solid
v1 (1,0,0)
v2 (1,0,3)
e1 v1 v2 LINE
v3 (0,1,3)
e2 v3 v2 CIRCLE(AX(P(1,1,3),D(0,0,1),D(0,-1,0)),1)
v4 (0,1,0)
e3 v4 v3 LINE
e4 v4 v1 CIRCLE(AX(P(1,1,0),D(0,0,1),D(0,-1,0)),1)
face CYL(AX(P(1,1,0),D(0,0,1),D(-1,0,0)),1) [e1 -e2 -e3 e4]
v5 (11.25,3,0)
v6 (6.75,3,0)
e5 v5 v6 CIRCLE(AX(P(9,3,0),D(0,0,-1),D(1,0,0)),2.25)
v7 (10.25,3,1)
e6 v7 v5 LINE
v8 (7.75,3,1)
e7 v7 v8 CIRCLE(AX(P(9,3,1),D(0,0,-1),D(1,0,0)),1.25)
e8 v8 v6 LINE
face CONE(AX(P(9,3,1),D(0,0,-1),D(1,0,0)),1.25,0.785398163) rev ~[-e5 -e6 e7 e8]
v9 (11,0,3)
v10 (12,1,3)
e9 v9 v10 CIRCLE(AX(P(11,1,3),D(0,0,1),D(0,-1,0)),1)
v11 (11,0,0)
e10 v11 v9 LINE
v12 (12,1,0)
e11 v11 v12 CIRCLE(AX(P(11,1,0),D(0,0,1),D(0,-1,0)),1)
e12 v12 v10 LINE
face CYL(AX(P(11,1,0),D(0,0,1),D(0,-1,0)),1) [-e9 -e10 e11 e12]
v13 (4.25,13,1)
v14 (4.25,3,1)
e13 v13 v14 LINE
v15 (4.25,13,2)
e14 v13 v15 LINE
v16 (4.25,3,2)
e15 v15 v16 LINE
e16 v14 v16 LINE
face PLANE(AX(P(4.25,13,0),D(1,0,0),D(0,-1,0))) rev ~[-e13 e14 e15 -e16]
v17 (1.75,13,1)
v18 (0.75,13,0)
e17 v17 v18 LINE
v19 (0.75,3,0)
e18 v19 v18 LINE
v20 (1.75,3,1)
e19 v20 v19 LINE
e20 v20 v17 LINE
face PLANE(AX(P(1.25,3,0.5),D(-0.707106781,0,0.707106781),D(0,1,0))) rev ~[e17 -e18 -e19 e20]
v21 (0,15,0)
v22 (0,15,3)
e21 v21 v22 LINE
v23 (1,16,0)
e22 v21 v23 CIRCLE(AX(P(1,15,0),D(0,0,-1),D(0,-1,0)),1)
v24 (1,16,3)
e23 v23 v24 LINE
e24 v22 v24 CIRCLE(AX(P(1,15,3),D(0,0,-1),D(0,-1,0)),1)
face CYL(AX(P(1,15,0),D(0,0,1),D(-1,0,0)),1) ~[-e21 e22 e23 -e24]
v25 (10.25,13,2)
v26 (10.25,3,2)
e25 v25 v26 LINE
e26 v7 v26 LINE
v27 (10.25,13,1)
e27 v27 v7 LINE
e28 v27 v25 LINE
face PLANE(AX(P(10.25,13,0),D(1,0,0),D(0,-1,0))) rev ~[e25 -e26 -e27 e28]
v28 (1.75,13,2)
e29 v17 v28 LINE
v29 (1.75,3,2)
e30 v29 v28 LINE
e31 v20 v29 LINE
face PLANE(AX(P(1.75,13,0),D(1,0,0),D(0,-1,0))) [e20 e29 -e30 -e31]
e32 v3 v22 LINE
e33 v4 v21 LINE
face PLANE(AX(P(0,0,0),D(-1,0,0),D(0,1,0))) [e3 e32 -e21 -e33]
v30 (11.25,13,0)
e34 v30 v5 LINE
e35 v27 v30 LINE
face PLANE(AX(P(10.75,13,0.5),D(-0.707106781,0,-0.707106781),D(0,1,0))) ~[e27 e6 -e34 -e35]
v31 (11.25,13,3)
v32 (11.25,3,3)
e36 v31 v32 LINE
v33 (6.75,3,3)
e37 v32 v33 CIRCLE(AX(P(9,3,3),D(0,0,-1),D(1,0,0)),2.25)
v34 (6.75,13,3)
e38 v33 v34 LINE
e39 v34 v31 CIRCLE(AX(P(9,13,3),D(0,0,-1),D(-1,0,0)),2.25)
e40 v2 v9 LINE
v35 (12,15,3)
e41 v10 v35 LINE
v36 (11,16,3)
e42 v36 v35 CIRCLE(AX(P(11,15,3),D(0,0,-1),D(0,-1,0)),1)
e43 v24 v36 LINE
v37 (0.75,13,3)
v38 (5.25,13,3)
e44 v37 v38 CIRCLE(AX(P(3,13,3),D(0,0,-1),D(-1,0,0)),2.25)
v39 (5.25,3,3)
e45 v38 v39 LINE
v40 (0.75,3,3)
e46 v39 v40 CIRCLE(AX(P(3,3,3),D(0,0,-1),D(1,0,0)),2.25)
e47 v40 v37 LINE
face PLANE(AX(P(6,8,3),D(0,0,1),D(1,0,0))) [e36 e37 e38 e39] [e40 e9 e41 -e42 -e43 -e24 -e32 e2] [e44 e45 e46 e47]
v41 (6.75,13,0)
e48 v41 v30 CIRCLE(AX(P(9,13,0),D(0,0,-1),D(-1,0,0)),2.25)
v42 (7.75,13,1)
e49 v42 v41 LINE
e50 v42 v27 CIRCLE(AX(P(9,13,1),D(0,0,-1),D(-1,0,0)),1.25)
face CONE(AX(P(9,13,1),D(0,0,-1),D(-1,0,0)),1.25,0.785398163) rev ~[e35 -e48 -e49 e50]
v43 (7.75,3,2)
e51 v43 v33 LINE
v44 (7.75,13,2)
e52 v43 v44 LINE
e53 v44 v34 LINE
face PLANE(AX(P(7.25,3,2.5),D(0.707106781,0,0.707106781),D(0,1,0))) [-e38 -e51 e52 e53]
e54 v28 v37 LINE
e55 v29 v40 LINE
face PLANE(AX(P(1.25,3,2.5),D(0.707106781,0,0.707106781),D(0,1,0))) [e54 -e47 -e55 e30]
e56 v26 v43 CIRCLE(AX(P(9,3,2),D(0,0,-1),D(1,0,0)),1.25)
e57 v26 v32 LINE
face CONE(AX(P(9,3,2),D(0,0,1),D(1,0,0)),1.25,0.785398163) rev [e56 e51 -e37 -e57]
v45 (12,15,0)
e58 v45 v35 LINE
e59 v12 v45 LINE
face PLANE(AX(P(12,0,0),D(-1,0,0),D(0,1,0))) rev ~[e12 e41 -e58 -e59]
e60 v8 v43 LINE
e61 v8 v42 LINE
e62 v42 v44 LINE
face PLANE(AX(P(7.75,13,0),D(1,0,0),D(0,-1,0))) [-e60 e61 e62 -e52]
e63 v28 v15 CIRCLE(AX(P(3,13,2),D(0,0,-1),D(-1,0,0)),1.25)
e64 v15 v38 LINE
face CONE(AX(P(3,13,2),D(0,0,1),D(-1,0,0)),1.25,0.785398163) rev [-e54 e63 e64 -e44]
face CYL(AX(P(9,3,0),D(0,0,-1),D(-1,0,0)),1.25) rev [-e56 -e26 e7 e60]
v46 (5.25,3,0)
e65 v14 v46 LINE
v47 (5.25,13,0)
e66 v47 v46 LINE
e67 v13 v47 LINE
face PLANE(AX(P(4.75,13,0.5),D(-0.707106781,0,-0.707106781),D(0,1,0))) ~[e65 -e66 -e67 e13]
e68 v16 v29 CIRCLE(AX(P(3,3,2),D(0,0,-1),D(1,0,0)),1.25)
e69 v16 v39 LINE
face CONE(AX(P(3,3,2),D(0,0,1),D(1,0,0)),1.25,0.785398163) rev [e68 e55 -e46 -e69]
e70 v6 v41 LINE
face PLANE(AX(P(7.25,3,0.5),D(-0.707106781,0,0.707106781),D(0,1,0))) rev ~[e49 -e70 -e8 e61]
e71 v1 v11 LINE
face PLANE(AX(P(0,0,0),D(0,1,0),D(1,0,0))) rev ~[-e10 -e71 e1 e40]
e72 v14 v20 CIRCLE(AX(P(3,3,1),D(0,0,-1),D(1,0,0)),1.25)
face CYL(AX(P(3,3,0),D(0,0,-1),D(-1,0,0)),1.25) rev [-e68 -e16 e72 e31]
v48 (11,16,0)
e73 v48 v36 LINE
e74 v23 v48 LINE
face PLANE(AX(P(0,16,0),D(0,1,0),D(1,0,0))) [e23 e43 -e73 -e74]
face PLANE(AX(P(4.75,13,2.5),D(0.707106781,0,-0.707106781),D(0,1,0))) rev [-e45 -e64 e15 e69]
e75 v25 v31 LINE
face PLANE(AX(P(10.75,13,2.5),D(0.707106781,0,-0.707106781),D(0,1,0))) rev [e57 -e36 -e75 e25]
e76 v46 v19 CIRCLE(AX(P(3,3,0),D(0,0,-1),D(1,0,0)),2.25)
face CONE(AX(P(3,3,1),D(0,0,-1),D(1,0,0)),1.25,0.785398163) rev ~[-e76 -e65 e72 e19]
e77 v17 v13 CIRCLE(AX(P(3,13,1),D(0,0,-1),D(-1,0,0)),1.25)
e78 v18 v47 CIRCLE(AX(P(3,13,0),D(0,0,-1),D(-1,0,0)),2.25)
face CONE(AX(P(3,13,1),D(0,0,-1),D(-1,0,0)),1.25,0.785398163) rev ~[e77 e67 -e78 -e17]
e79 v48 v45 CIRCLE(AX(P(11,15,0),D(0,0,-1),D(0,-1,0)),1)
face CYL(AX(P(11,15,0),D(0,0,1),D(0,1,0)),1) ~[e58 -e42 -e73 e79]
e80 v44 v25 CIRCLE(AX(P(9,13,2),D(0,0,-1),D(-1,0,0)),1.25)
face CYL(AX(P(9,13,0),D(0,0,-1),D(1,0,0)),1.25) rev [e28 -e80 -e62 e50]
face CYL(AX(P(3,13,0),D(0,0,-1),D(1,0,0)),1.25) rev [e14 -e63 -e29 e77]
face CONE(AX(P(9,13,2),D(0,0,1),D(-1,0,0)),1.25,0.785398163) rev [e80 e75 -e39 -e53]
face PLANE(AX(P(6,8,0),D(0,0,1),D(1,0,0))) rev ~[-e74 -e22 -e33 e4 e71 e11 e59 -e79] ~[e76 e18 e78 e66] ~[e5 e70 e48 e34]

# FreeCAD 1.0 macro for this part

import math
import FreeCAD as App
import Part
import Sketcher
from FreeCAD import Vector
Q = App.Units.Quantity


def edges_at(feature, points):
    """Names of the edges that pass closest to the given points."""
    edges = feature.Shape.Edges
    near = lambda p: min(range(len(edges)), key=lambda i: edges[i].distToShape(Part.Vertex(*p))[0])
    return sorted({f"Edge{near(p) + 1}" for p in points})


def add_polygon(sketch, points):
    """Adds a closed chain of lines whose ends are joined by coincident constraints."""
    first, n = sketch.GeometryCount, len(points)
    for a, b in zip(points, points[1:] + points[:1]):
        sketch.addGeometry(Part.LineSegment(App.Vector(*a, 0), App.Vector(*b, 0)), False)
    for i in range(n):
        sketch.addConstraint(Sketcher.Constraint("Coincident", first + i, 2, first + (i + 1) % n, 1))

doc = App.newDocument("Part")
params = doc.addObject("Spreadsheet::Sheet", "Params")
for row, (alias, value) in enumerate([
    ("sketch1_width", "12 mm"),
    ("sketch1_height", "16 mm"),
    ("sketch1_height2", "10 mm"),
    ("sketch1_radius", "1.25 mm"),
    ("pad1_length", "3 mm"),
    ("chamfer_size", "1 mm"),
    ("fillet_radius", "1 mm"),
], start=1):
    params.set(f"A{row}", alias)
    params.set(f"B{row}", "=" + value)
    params.setAlias(f"B{row}", alias)

body = doc.addObject("PartDesign::Body", "Body")

# Sketch on XY plane
sketch1 = body.newObject("Sketcher::SketchObject", "Sketch")
sketch1.AttachmentSupport = (doc.getObject("XY_Plane"), [""])
sketch1.MapMode = "FlatFace"
add_polygon(sketch1, [(0, 16), (0, 0), (12, 0), (12, 16)])  # lines 0-3
sketch1.addGeometry(Part.ArcOfCircle(Part.Circle(Vector(3, 13, 0), Vector(0, 0, 1), 1.25), math.radians(0), math.radians(180)), False)  # 4
sketch1.addGeometry(Part.LineSegment(Vector(4.25, 13, 0), Vector(4.25, 3, 0)), False)  # 5
sketch1.addGeometry(Part.ArcOfCircle(Part.Circle(Vector(3, 3, 0), Vector(0, 0, 1), 1.25), math.radians(180), math.radians(360)), False)  # 6
sketch1.addGeometry(Part.LineSegment(Vector(1.75, 3, 0), Vector(1.75, 13, 0)), False)  # 7
sketch1.addGeometry(Part.ArcOfCircle(Part.Circle(Vector(9, 13, 0), Vector(0, 0, 1), 1.25), math.radians(0), math.radians(180)), False)  # 8
sketch1.addGeometry(Part.LineSegment(Vector(10.25, 13, 0), Vector(10.25, 3, 0)), False)  # 9
sketch1.addGeometry(Part.ArcOfCircle(Part.Circle(Vector(9, 3, 0), Vector(0, 0, 1), 1.25), math.radians(180), math.radians(360)), False)  # 10
sketch1.addGeometry(Part.LineSegment(Vector(7.75, 3, 0), Vector(7.75, 13, 0)), False)  # 11
sketch1.addConstraint([
    Sketcher.Constraint("Tangent", 4, 1, 5, 1),
    Sketcher.Constraint("Tangent", 5, 2, 6, 2),
    Sketcher.Constraint("Tangent", 6, 1, 7, 1),
    Sketcher.Constraint("Tangent", 7, 2, 4, 2),
    Sketcher.Constraint("Tangent", 8, 1, 9, 1),
    Sketcher.Constraint("Tangent", 9, 2, 10, 2),
    Sketcher.Constraint("Tangent", 10, 1, 11, 1),
    Sketcher.Constraint("Tangent", 11, 2, 8, 2),
    Sketcher.Constraint("Vertical", 0),
    Sketcher.Constraint("Horizontal", 1),
    Sketcher.Constraint("Vertical", 2),
    Sketcher.Constraint("Horizontal", 3),
    Sketcher.Constraint("Vertical", 5),
    Sketcher.Constraint("Vertical", 7),
    Sketcher.Constraint("Vertical", 9),
    Sketcher.Constraint("Vertical", 11),
    Sketcher.Constraint("Coincident", 0, 2, -1, 1),
    Sketcher.Constraint("Equal", 6, 8),
    Sketcher.Constraint("Horizontal", 4, 3, 8, 3),
    Sketcher.Constraint("Horizontal", 6, 3, 10, 3),
    Sketcher.Constraint("DistanceX", 1, 1, 1, 2, Q("12 mm")),
    Sketcher.Constraint("DistanceY", 0, 2, 0, 1, Q("16 mm")),
    Sketcher.Constraint("DistanceY", 5, 2, 5, 1, Q("10 mm")),
    Sketcher.Constraint("Radius", 4, Q("1.25 mm")),
    Sketcher.Constraint("DistanceX", -1, 1, 4, 3, Q("3 mm")),
    Sketcher.Constraint("DistanceY", -1, 1, 4, 3, Q("13 mm")),
    Sketcher.Constraint("DistanceX", -1, 1, 8, 3, Q("9 mm")),
])
sketch1.setExpression("Constraints[24]", "Params.sketch1_width")
sketch1.setExpression("Constraints[25]", "Params.sketch1_height")
sketch1.setExpression("Constraints[26]", "Params.sketch1_height2")
sketch1.setExpression("Constraints[27]", "Params.sketch1_radius")
pad1 = body.newObject("PartDesign::Pad", "Pad")
pad1.Profile = sketch1
pad1.setExpression("Length", "Params.pad1_length")
doc.recompute()

chamfer = body.newObject("PartDesign::Chamfer", "Chamfer")
chamfer.Base = (pad1, edges_at(pad1, [
    (4.25, 8, 3),
    (4.25, 8, 0),
    (10.25, 8, 0),
    (10.25, 8, 3),
]))
chamfer.setExpression("Size", "Params.chamfer_size")
doc.recompute()

fillet = body.newObject("PartDesign::Fillet", "Fillet")
fillet.Base = (chamfer, edges_at(chamfer, [
    (0, 16, 1.5),
    (0, 0, 1.5),
    (12, 0, 1.5),
    (12, 16, 1.5),
]))
fillet.setExpression("Radius", "Params.fillet_radius")

doc.recompute()
